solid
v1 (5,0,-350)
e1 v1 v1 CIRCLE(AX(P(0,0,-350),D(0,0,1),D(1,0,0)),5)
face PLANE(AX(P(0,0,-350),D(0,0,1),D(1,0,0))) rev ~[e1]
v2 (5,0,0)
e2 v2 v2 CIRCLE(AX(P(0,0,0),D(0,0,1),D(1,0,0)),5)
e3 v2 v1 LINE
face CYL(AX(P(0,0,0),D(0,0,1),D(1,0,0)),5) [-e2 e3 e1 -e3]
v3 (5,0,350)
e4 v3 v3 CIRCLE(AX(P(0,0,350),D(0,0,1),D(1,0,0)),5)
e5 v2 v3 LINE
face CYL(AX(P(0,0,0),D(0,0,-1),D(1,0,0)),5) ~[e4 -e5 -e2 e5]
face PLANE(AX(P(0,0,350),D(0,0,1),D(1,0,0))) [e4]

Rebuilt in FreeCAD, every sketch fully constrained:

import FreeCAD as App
import Part
import Sketcher

V = App.Vector
Q = App.Units.Quantity

doc = App.newDocument("Part")
body = doc.addObject("PartDesign::Body", "Body")

sketch1 = doc.addObject("Sketcher::SketchObject", "Sketch")
body.addObject(sketch1)
sketch1.AttachmentSupport = (doc.XY_Plane, [""])
sketch1.MapMode = "FlatFace"
sketch1.addGeometry(Part.Circle(V(0, 0, 0), V(0, 0, 1), 5), False)
sketch1.addConstraint([
    Sketcher.Constraint("Coincident", 0, 3, -1, 1),
    Sketcher.Constraint("Diameter", 0, Q("10 mm")),
])
pad1 = doc.addObject("PartDesign::Pad", "Pad")
body.addObject(pad1)
pad1.Profile = sketch1
pad1.Length = 700
pad1.Midplane = True

doc.recompute()
